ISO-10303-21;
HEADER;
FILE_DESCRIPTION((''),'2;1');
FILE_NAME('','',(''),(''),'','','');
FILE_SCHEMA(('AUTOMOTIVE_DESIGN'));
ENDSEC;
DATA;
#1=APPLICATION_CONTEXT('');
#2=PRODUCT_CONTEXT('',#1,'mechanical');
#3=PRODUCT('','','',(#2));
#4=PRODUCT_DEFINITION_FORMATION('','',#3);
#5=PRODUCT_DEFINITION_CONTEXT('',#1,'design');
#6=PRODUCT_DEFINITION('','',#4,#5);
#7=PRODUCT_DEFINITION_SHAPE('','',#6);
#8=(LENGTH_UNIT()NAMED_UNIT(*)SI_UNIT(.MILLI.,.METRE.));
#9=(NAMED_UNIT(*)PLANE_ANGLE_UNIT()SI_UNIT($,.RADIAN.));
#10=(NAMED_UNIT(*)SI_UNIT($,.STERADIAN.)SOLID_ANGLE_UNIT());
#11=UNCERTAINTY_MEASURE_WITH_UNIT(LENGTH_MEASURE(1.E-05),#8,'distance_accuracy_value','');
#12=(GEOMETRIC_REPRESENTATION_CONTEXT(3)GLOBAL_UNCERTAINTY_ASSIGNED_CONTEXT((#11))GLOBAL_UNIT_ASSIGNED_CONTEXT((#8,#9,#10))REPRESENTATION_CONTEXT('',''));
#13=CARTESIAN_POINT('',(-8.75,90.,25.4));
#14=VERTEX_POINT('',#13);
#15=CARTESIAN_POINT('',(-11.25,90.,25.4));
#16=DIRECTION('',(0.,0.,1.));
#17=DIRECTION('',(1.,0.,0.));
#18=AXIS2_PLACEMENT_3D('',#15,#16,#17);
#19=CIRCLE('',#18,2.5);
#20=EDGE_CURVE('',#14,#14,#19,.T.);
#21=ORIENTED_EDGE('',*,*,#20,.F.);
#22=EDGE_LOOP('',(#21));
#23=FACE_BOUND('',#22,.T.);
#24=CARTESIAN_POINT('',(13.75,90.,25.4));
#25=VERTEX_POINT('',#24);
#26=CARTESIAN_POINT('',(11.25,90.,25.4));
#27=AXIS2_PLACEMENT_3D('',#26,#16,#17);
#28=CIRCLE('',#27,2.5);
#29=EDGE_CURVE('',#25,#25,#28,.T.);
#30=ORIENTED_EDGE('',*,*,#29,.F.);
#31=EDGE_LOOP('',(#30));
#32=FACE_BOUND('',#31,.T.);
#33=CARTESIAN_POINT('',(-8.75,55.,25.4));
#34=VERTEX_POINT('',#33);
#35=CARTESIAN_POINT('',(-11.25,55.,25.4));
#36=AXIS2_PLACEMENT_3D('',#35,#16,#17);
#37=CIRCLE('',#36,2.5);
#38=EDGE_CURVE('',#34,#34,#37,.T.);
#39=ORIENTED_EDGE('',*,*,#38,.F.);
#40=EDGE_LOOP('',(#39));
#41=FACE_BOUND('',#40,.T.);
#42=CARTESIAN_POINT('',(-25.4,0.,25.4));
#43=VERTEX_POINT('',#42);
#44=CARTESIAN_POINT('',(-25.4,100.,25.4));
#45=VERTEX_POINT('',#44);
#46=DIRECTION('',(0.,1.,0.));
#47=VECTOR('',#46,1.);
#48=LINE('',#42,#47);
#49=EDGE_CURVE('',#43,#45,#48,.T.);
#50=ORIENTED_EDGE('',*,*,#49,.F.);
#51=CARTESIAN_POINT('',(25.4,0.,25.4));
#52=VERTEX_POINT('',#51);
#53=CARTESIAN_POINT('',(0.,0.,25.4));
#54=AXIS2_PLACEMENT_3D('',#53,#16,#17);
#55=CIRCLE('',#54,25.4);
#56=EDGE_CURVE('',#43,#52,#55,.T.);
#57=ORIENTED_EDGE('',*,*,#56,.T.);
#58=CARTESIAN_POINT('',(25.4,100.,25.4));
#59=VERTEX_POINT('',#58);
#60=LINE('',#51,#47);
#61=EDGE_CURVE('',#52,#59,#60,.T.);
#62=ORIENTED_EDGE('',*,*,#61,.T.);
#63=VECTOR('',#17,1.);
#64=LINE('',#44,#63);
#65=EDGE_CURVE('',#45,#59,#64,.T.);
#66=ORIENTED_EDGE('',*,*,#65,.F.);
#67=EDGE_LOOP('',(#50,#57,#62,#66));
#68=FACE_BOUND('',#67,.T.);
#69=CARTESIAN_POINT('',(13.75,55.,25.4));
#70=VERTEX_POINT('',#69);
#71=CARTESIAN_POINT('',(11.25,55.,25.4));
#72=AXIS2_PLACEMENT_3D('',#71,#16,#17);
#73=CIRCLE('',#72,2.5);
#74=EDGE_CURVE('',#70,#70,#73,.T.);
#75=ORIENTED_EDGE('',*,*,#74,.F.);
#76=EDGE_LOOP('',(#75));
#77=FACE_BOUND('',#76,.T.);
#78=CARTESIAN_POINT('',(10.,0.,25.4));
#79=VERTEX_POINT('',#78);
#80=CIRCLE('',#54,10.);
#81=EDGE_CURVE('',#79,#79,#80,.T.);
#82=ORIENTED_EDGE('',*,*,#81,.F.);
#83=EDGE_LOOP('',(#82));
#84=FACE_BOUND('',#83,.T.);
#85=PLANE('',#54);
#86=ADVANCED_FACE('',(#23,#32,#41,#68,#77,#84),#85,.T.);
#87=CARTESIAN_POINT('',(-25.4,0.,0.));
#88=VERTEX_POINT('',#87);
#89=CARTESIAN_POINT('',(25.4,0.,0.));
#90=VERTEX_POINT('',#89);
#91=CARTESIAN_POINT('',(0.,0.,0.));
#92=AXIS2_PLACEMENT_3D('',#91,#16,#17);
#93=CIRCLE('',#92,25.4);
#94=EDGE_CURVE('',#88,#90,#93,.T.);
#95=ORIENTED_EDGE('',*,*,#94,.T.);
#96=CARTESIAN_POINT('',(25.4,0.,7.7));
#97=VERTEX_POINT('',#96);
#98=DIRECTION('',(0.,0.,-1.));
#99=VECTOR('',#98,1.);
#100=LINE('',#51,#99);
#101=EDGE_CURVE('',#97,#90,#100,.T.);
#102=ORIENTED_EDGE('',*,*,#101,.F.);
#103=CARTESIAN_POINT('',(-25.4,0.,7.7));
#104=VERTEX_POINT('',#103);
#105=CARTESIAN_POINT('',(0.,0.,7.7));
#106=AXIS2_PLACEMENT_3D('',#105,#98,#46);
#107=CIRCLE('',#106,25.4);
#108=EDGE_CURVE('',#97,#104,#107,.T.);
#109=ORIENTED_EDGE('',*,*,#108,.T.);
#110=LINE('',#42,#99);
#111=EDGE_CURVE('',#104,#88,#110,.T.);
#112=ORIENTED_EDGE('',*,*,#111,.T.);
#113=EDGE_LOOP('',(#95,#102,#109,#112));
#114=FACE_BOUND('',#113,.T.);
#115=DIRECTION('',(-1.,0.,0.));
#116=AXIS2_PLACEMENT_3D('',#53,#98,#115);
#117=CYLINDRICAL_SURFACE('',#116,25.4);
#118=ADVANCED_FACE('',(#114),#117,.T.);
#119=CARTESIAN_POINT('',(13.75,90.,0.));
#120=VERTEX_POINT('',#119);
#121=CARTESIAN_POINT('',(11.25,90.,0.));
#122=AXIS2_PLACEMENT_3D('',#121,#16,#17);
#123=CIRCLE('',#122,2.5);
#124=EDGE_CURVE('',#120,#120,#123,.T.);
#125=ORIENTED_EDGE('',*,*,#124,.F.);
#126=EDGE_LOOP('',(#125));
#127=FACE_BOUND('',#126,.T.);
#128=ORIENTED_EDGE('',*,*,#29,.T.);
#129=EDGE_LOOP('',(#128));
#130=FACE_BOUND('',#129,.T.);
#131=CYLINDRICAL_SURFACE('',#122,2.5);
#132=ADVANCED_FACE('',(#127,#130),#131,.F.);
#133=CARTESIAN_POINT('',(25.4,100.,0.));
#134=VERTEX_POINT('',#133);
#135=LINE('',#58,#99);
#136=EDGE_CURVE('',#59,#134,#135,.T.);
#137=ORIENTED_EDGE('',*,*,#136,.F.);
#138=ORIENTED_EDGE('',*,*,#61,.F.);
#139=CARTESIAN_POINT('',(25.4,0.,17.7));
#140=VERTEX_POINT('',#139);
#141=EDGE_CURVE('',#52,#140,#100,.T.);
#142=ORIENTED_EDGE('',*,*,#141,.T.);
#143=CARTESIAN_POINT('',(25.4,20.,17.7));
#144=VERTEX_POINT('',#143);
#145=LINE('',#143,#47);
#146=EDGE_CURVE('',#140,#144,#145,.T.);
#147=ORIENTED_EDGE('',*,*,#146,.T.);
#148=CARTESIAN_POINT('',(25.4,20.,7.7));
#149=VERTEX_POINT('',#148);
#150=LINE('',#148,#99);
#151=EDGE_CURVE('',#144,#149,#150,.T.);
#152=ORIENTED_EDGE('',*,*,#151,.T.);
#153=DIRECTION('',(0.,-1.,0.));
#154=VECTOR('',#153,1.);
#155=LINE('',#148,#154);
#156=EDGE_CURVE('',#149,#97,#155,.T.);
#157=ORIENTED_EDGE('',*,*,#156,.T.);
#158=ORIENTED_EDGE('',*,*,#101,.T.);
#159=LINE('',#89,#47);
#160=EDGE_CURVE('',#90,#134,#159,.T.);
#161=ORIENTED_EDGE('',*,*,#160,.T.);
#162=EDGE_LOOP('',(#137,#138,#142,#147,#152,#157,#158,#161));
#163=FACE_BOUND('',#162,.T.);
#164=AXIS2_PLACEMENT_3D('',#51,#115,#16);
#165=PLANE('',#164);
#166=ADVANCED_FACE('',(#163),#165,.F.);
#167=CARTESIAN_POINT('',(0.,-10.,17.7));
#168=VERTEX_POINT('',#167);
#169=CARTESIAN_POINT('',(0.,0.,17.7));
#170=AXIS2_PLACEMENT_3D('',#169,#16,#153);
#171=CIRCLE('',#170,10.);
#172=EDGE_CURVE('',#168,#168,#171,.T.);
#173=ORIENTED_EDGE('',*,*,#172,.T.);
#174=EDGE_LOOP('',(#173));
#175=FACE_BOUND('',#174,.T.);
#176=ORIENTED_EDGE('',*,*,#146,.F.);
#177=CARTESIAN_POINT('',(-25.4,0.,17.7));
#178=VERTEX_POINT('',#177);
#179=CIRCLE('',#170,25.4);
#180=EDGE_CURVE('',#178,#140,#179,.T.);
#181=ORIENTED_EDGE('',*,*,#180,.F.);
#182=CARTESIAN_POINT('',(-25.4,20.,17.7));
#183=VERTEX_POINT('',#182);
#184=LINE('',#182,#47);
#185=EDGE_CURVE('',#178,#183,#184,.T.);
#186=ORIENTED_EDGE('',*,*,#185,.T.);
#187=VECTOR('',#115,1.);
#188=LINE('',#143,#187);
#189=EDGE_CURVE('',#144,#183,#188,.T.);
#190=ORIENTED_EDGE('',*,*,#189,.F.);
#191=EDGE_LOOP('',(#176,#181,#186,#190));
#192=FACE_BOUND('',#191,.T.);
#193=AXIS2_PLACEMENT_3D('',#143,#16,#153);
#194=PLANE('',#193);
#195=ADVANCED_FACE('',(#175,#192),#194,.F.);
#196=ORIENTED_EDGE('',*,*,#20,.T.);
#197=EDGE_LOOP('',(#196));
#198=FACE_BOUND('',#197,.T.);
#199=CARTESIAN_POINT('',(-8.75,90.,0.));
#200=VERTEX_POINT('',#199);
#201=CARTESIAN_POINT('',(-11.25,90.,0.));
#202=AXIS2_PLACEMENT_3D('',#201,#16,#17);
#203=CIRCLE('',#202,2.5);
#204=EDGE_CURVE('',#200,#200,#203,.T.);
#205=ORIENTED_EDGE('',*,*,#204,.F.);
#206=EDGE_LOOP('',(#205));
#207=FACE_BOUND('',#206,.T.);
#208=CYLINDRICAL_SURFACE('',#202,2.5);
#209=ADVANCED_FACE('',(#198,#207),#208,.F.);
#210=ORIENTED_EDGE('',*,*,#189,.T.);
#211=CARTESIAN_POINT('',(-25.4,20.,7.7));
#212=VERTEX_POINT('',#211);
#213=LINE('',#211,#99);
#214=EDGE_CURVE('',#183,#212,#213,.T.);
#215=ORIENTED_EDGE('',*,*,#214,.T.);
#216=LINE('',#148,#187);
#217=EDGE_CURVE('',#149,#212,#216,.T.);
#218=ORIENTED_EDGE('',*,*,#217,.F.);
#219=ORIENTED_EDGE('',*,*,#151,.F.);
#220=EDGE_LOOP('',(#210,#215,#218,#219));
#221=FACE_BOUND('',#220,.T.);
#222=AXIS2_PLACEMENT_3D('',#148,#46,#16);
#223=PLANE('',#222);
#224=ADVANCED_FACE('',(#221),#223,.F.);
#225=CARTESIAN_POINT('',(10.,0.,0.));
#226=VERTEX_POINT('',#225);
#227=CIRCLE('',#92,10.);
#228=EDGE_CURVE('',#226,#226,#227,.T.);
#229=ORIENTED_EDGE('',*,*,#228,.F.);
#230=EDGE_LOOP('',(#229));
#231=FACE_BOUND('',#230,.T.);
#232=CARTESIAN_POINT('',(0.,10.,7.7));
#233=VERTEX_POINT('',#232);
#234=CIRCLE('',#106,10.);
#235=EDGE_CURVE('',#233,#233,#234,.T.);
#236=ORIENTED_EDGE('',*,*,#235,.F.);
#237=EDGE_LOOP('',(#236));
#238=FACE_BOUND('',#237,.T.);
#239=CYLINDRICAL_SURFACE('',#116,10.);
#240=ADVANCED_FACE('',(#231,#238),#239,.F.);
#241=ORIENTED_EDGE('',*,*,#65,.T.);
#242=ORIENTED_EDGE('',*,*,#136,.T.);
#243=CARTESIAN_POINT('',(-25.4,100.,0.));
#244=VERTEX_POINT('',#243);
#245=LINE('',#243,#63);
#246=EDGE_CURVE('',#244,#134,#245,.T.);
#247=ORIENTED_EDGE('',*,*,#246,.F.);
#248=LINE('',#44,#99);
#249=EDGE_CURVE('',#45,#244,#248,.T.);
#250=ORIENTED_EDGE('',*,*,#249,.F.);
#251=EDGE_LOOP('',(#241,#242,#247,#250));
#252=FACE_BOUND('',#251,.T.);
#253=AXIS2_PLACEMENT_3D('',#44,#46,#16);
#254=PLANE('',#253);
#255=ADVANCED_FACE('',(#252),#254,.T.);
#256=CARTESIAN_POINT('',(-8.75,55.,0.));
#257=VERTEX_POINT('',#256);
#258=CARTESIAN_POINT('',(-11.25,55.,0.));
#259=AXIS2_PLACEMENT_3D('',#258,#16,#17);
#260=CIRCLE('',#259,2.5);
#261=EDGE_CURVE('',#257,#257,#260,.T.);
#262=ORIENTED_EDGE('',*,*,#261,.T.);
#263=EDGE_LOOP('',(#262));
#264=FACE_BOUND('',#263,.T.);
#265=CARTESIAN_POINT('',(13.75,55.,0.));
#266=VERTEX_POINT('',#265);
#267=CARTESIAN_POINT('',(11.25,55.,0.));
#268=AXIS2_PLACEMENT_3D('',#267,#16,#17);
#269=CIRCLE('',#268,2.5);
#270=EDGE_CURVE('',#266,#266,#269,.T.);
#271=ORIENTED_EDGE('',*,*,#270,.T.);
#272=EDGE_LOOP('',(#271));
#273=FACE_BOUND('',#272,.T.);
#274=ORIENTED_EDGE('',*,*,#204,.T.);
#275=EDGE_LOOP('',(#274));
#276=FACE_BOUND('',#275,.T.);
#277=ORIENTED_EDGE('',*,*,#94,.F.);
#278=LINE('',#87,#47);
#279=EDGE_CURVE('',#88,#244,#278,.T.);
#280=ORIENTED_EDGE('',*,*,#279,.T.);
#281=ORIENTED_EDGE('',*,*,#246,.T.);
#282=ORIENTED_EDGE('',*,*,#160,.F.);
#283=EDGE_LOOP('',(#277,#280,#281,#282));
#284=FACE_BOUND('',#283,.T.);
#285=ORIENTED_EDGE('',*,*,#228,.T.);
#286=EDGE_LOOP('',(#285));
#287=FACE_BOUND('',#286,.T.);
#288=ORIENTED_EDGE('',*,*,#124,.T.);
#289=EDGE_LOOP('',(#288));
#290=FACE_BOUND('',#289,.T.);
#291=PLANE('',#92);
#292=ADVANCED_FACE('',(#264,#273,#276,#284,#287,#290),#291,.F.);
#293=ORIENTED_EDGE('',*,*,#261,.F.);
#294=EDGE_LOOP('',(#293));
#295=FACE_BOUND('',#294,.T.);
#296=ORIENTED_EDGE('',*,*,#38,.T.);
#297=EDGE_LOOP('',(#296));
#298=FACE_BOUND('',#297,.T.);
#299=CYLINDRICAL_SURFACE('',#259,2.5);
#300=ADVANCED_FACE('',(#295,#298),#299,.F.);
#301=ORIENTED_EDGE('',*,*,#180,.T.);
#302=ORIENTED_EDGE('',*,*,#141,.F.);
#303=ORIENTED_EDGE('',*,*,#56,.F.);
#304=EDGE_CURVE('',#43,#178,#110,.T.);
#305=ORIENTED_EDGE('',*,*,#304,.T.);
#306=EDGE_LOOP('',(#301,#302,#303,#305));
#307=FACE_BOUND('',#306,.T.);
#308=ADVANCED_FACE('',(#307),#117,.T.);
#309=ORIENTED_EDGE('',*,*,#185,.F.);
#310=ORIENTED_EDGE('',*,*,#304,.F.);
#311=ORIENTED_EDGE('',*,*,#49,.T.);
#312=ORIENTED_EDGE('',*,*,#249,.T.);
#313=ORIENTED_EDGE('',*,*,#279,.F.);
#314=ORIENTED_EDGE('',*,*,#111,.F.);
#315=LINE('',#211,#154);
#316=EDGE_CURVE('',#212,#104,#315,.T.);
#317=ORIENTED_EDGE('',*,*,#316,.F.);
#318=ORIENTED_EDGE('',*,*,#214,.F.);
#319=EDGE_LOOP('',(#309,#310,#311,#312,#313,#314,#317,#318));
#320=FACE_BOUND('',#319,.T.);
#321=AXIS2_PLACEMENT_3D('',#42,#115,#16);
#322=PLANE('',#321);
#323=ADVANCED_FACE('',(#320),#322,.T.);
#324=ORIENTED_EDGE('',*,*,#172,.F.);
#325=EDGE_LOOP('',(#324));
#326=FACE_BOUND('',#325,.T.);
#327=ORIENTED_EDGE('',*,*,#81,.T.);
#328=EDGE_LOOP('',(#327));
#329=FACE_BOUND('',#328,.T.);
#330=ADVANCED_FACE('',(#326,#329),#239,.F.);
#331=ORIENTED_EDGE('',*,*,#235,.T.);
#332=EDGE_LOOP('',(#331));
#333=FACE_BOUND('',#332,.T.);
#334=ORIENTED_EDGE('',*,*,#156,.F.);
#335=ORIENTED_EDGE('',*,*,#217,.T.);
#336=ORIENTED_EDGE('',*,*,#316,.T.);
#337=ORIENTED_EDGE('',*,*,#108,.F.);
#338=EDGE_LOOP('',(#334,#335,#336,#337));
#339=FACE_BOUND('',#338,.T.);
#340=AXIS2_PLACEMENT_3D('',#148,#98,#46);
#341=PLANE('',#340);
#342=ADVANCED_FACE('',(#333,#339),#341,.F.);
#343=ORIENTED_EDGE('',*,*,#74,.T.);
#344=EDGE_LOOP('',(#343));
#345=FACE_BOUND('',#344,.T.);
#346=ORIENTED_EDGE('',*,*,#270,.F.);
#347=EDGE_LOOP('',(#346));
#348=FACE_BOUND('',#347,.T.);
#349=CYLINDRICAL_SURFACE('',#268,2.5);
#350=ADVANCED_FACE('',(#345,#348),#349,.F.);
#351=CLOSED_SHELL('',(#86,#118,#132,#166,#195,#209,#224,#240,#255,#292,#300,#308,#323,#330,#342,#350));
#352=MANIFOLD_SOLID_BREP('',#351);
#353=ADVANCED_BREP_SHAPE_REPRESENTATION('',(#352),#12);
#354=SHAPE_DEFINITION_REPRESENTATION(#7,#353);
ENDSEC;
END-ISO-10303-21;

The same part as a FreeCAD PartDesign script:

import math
import FreeCAD as App
import Part
import Sketcher

V = App.Vector

doc = App.newDocument("Part")
body = doc.addObject("PartDesign::Body", "Body")

sketch1 = body.newObject("Sketcher::SketchObject", "Sketch")
sketch1.AttachmentSupport = (doc.getObject("XY_Plane"), [""])
sketch1.MapMode = "FlatFace"
sketch1.addGeometry([
    Part.LineSegment(V(-25, 100, 0), V(-25, 0, 0)),
    Part.ArcOfCircle(Part.Circle(V(0, 0, 0), V(0, 0, 1), 25), math.radians(180), math.radians(360)),
    Part.LineSegment(V(25, 0, 0), V(25, 100, 0)),
    Part.LineSegment(V(25, 100, 0), V(-25, 100, 0)),
    Part.Circle(V(0, 0, 0), V(0, 0, 1), 10),
], False)
sketch1.addConstraint([
    Sketcher.Constraint("Tangent", 0, 2, 1, 1),
    Sketcher.Constraint("Tangent", 1, 2, 2, 1),
    Sketcher.Constraint("Coincident", 2, 2, 3, 1),
    Sketcher.Constraint("Coincident", 3, 2, 0, 1),
    Sketcher.Constraint("Vertical", 0),
    Sketcher.Constraint("Vertical", 2),
    Sketcher.Constraint("Horizontal", 3),
    Sketcher.Constraint("Coincident", 1, 3, -1, 1),
    Sketcher.Constraint("Coincident", 4, 3, -1, 1),
    Sketcher.Constraint("Diameter", 4, 20.0),
    Sketcher.Constraint("Radius", 1, 25.4),
    Sketcher.Constraint("DistanceY", 0, 2, 0, 1, 100.0),
])
pad1 = body.newObject("PartDesign::Pad", "Pad")
pad1.Profile = sketch1
pad1.Length = 25.4

sketch2 = body.newObject("Sketcher::SketchObject", "Sketch001")
sketch2.AttachmentSupport = (doc.getObject("YZ_Plane"), [""])
sketch2.MapMode = "FlatFace"
sketch2.AttachmentOffset = App.Placement(V(0, 0, -25.4), App.Rotation())
sketch2.addGeometry([
    Part.LineSegment(V(20, 8, 0), V(-25, 8, 0)),
    Part.LineSegment(V(-25, 8, 0), V(-25, 18, 0)),
    Part.LineSegment(V(-25, 18, 0), V(20, 18, 0)),
    Part.LineSegment(V(20, 18, 0), V(20, 8, 0)),
], False)
sketch2.addConstraint([
    Sketcher.Constraint("Coincident", 0, 2, 1, 1),
    Sketcher.Constraint("Coincident", 1, 2, 2, 1),
    Sketcher.Constraint("Coincident", 2, 2, 3, 1),
    Sketcher.Constraint("Coincident", 3, 2, 0, 1),
    Sketcher.Constraint("Horizontal", 0),
    Sketcher.Constraint("Vertical", 1),
    Sketcher.Constraint("Horizontal", 2),
    Sketcher.Constraint("Vertical", 3),
    Sketcher.Constraint("DistanceY", 1, 1, 1, 2, 10.0),
    Sketcher.Constraint("DistanceX", 0, 2, 0, 1, 45.4),
    Sketcher.Constraint("DistanceX", -1, 1, 2, 2, 20.0),
    Sketcher.Constraint("DistanceY", -1, 1, 0, 2, 7.7),
])
pocket1 = body.newObject("PartDesign::Pocket", "Pocket")
pocket1.Profile = sketch2
pocket1.Type = "ThroughAll"
pocket1.Reversed = True

sketch3 = body.newObject("Sketcher::SketchObject", "Sketch002")
sketch3.AttachmentSupport = (doc.getObject("XY_Plane"), [""])
sketch3.MapMode = "FlatFace"
sketch3.AttachmentOffset = App.Placement(V(0, 0, 25.4), App.Rotation())
sketch3.addGeometry([
    Part.Circle(V(-11.2, 90, 0), V(0, 0, 1), 2.5),
    Part.Circle(V(11.2, 90, 0), V(0, 0, 1), 2.5),
    Part.Circle(V(11.2, 55, 0), V(0, 0, 1), 2.5),
    Part.Circle(V(-11.2, 55, 0), V(0, 0, 1), 2.5),
], False)
sketch3.addConstraint([
    Sketcher.Constraint("Equal", 0, 1),
    Sketcher.Constraint("Equal", 1, 2),
    Sketcher.Constraint("Equal", 2, 3),
    Sketcher.Constraint("Symmetric", 0, 3, 1, 3, -2),
    Sketcher.Constraint("Symmetric", 2, 3, 3, 3, -2),
    Sketcher.Constraint("Vertical", 1, 3, 2, 3),
    Sketcher.Constraint("Diameter", 0, 5.0),
    Sketcher.Constraint("DistanceY", -1, 1, 0, 3, 90.0),
    Sketcher.Constraint("DistanceY", -1, 1, 2, 3, 55.0),
    Sketcher.Constraint("DistanceX", 0, 3, 1, 3, 22.5),
])
pocket2 = body.newObject("PartDesign::Pocket", "Pocket001")
pocket2.Profile = sketch3
pocket2.Type = "ThroughAll"

doc.recompute()
